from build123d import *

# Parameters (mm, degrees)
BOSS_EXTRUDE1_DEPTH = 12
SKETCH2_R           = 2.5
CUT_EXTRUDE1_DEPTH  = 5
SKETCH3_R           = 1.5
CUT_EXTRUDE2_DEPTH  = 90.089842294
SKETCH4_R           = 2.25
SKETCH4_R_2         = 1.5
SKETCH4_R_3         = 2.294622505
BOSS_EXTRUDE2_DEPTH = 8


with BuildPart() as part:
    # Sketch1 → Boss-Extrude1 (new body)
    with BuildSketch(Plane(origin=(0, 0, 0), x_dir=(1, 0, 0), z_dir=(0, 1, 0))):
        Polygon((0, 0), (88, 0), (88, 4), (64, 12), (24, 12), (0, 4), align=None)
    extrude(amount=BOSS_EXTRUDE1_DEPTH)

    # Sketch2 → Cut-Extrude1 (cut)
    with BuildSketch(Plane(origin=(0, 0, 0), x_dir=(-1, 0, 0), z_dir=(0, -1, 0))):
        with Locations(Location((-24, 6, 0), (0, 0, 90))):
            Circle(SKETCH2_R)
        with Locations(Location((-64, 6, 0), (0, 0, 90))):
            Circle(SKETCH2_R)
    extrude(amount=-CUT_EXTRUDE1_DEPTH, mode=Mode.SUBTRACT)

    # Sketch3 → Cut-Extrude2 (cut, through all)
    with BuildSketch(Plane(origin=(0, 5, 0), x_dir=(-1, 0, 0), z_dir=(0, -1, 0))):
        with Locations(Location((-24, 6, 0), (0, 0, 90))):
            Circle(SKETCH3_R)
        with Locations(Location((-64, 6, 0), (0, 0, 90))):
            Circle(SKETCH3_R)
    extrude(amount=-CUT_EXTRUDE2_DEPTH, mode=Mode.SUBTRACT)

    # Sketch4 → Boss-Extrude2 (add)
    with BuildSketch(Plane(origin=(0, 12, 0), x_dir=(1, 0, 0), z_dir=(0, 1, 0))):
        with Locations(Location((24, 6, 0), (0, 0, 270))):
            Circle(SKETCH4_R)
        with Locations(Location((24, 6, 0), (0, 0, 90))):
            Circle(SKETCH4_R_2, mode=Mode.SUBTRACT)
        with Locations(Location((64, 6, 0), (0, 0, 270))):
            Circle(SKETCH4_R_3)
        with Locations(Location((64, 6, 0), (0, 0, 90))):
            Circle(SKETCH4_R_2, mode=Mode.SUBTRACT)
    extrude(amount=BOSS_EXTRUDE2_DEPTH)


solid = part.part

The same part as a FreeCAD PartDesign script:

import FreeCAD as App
import Part
import Sketcher
from FreeCAD import Vector


def add_polygon(sketch, points):
    """Adds a closed chain of lines whose ends are joined by coincident constraints."""
    first, n = sketch.GeometryCount, len(points)
    for a, b in zip(points, points[1:] + points[:1]):
        sketch.addGeometry(Part.LineSegment(App.Vector(*a, 0), App.Vector(*b, 0)), False)
    for i in range(n):
        sketch.addConstraint(Sketcher.Constraint("Coincident", first + i, 2, first + (i + 1) % n, 1))

doc = App.newDocument("Part")
body = doc.addObject("PartDesign::Body", "Body")

sketch1 = body.newObject("Sketcher::SketchObject", "Sketch")
sketch1.AttachmentSupport = (doc.getObject("XZ_Plane"), [""])
sketch1.MapMode = "FlatFace"
add_polygon(sketch1, [(0, 0), (88, 0), (88, -4), (64, -12), (24, -12), (0, -4)])
sketch1.addConstraint(Sketcher.Constraint("Horizontal", 0))
sketch1.addConstraint(Sketcher.Constraint("Vertical", 1))
sketch1.addConstraint(Sketcher.Constraint("Horizontal", 3))
sketch1.addConstraint(Sketcher.Constraint("Vertical", 5))
sketch1.addConstraint(Sketcher.Constraint("Coincident", 5, 2, -1, 1))
sketch1.addConstraint(Sketcher.Constraint("Horizontal", 1, 2, 4, 2))
sketch1.addConstraint(Sketcher.Constraint("Equal", 2, 4))
sketch1.addConstraint(Sketcher.Constraint("DistanceX", 0, 1, 0, 2, 88.0))
sketch1.addConstraint(Sketcher.Constraint("DistanceX", 3, 2, 3, 1, 40.0))
sketch1.addConstraint(Sketcher.Constraint("DistanceY", 1, 2, 1, 1, 4.0))
sketch1.addConstraint(Sketcher.Constraint("DistanceY", 2, 2, -1, 1, 12.0))
pad1 = body.newObject("PartDesign::Pad", "Pad")
pad1.Profile = sketch1
pad1.Length = 12
pad1.Reversed = True

sketch2 = body.newObject("Sketcher::SketchObject", "Sketch001")
sketch2.AttachmentSupport = (doc.getObject("XZ_Plane"), [""])
sketch2.MapMode = "FlatFace"
sketch2.addGeometry(Part.Circle(Vector(24, -6, 0), Vector(0, 0, 1), 2.5), False)
sketch2.addGeometry(Part.Circle(Vector(64, -6, 0), Vector(0, 0, 1), 2.5), False)
sketch2.addConstraint(Sketcher.Constraint("Equal", 0, 1))
sketch2.addConstraint(Sketcher.Constraint("Horizontal", 0, 3, 1, 3))
sketch2.addConstraint(Sketcher.Constraint("Diameter", 0, 5.0))
sketch2.addConstraint(Sketcher.Constraint("DistanceX", -1, 1, 0, 3, 24.0))
sketch2.addConstraint(Sketcher.Constraint("DistanceY", 0, 3, -1, 1, 6.0))
sketch2.addConstraint(Sketcher.Constraint("DistanceX", -1, 1, 1, 3, 64.0))
pocket1 = body.newObject("PartDesign::Pocket", "Pocket")
pocket1.Profile = sketch2
pocket1.Length = 5

sketch3 = body.newObject("Sketcher::SketchObject", "Sketch002")
sketch3.AttachmentSupport = (doc.getObject("XZ_Plane"), [""])
sketch3.MapMode = "FlatFace"
sketch3.AttachmentOffset = App.Placement(Vector(0, 0, -5), App.Rotation())
sketch3.addGeometry(Part.Circle(Vector(24, -6, 0), Vector(0, 0, 1), 1.5), False)
sketch3.addGeometry(Part.Circle(Vector(64, -6, 0), Vector(0, 0, 1), 1.5), False)
sketch3.addConstraint(Sketcher.Constraint("Equal", 0, 1))
sketch3.addConstraint(Sketcher.Constraint("Horizontal", 0, 3, 1, 3))
sketch3.addConstraint(Sketcher.Constraint("Diameter", 0, 3.0))
sketch3.addConstraint(Sketcher.Constraint("DistanceX", -1, 1, 0, 3, 24.0))
sketch3.addConstraint(Sketcher.Constraint("DistanceY", 0, 3, -1, 1, 6.0))
sketch3.addConstraint(Sketcher.Constraint("DistanceX", -1, 1, 1, 3, 64.0))
pocket2 = body.newObject("PartDesign::Pocket", "Pocket001")
pocket2.Profile = sketch3
pocket2.Type = "ThroughAll"

sketch4 = body.newObject("Sketcher::SketchObject", "Sketch003")
sketch4.AttachmentSupport = (doc.getObject("XZ_Plane"), [""])
sketch4.MapMode = "FlatFace"
sketch4.AttachmentOffset = App.Placement(Vector(0, 0, -12), App.Rotation())
sketch4.addGeometry(Part.Circle(Vector(24, -6, 0), Vector(0, 0, 1), 2.2), False)
sketch4.addGeometry(Part.Circle(Vector(24, -6, 0), Vector(0, 0, 1), 1.5), False)
sketch4.addGeometry(Part.Circle(Vector(64, -6, 0), Vector(0, 0, 1), 2.3), False)
sketch4.addGeometry(Part.Circle(Vector(64, -6, 0), Vector(0, 0, 1), 1.5), False)
sketch4.addConstraint(Sketcher.Constraint("Coincident", 1, 3, 0, 3))
sketch4.addConstraint(Sketcher.Constraint("Coincident", 3, 3, 2, 3))
sketch4.addConstraint(Sketcher.Constraint("Equal", 1, 3))
sketch4.addConstraint(Sketcher.Constraint("Horizontal", 1, 3, 2, 3))
sketch4.addConstraint(Sketcher.Constraint("Diameter", 1, 3.0))
sketch4.addConstraint(Sketcher.Constraint("Diameter", 0, 4.5))
sketch4.addConstraint(Sketcher.Constraint("DistanceX", -1, 1, 0, 3, 24.0))
sketch4.addConstraint(Sketcher.Constraint("DistanceY", 0, 3, -1, 1, 6.0))
sketch4.addConstraint(Sketcher.Constraint("DistanceX", -1, 1, 2, 3, 64.0))
sketch4.addConstraint(Sketcher.Constraint("Diameter", 2, 4.589245))
pad2 = body.newObject("PartDesign::Pad", "Pad001")
pad2.Profile = sketch4
pad2.Length = 8
pad2.Reversed = True

doc.recompute()
